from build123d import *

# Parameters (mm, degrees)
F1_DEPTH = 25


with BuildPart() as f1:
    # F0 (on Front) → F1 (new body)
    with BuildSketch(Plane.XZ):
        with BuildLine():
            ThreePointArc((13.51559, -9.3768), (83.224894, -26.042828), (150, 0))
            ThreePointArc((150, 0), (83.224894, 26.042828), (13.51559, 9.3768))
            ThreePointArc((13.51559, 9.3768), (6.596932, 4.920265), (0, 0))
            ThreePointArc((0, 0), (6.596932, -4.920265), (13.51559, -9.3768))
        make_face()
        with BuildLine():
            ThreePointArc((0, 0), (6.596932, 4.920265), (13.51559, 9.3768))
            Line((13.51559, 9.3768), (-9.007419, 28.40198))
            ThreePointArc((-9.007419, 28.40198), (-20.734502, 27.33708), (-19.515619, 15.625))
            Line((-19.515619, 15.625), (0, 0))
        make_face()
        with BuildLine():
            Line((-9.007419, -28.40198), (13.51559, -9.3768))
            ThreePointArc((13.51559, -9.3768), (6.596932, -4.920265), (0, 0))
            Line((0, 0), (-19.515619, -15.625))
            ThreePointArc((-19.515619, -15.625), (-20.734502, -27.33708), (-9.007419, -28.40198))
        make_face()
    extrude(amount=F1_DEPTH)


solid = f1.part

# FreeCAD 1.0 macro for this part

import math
import FreeCAD as App
import Part
import Sketcher

V = App.Vector
Q = App.Units.Quantity

doc = App.newDocument("Part")
body = doc.addObject("PartDesign::Body", "Body")

# Sketch on XZ plane
sketch1 = body.newObject("Sketcher::SketchObject", "Sketch")
sketch1.AttachmentSupport = (doc.getObject("XZ_Plane"), [""])
sketch1.MapMode = "FlatFace"
sketch1.addGeometry(Part.ArcOfCircle(Part.Circle(V(75, 94, 0), V(0, 0, 1), 120), math.radians(-121), math.radians(-51)), False)
sketch1.addGeometry(Part.ArcOfCircle(Part.Circle(V(75, -94, 0), V(0, 0, 1), 120), math.radians(51), math.radians(121)), False)
sketch1.addGeometry(Part.LineSegment(V(14, 9, 0), V(-9, 28, 0)), False)
sketch1.addGeometry(Part.ArcOfCircle(Part.Circle(V(-14, 22, 0), V(0, 0, 1), 8), math.radians(50), math.radians(231)), False)
sketch1.addGeometry(Part.LineSegment(V(-20, 16, 0), V(0, 0, 0)), False)
sketch1.addGeometry(Part.LineSegment(V(0, 0, 0), V(-20, -16, 0)), False)
sketch1.addGeometry(Part.ArcOfCircle(Part.Circle(V(-14, -22, 0), V(0, 0, 1), 8), math.radians(129), math.radians(310)), False)
sketch1.addGeometry(Part.LineSegment(V(-9, -28, 0), V(14, -9, 0)), False)
sketch1.addConstraint(Sketcher.Constraint("Coincident", 0, 2, 1, 1))
sketch1.addConstraint(Sketcher.Constraint("Coincident", 1, 2, 2, 1))
sketch1.addConstraint(Sketcher.Constraint("Tangent", 2, 2, 3, 1))
sketch1.addConstraint(Sketcher.Constraint("Tangent", 3, 2, 4, 1))
sketch1.addConstraint(Sketcher.Constraint("Coincident", 4, 2, 5, 1))
sketch1.addConstraint(Sketcher.Constraint("Tangent", 5, 2, 6, 1))
sketch1.addConstraint(Sketcher.Constraint("Tangent", 6, 2, 7, 1))
sketch1.addConstraint(Sketcher.Constraint("Coincident", 7, 2, 0, 1))
sketch1.addConstraint(Sketcher.Constraint("Coincident", 4, 2, -1, 1))
sketch1.addConstraint(Sketcher.Constraint("Equal", 0, 1))
sketch1.addConstraint(Sketcher.Constraint("Equal", 3, 6))
sketch1.addConstraint(Sketcher.Constraint("Symmetric", 0, 3, 1, 3, -1))
sketch1.addConstraint(Sketcher.Constraint("Symmetric", 3, 3, 6, 3, -1))
sketch1.addConstraint(Sketcher.Constraint("Vertical", 2, 2, 6, 2))
sketch1.addConstraint(Sketcher.Constraint("Radius", 0, Q("119.999999 mm")))
sketch1.addConstraint(Sketcher.Constraint("Distance", 4, Q("25 mm")))
sketch1.addConstraint(Sketcher.Constraint("DistanceX", -1, 1, 0, 3, Q("75 mm")))
sketch1.addConstraint(Sketcher.Constraint("DistanceX", -1, 1, 0, 2, Q("150 mm")))
sketch1.addConstraint(Sketcher.Constraint("DistanceY", 5, 2, 3, 2, Q("31.25 mm")))
sketch1.addConstraint(Sketcher.Constraint("Radius", 3, Q("8.272254 mm")))
sketch1.addConstraint(Sketcher.Constraint("DistanceY", -1, 1, 1, 2, Q("9.3768 mm")))
pad1 = body.newObject("PartDesign::Pad", "Pad")
pad1.Profile = sketch1
pad1.Length = 25

doc.recompute()
